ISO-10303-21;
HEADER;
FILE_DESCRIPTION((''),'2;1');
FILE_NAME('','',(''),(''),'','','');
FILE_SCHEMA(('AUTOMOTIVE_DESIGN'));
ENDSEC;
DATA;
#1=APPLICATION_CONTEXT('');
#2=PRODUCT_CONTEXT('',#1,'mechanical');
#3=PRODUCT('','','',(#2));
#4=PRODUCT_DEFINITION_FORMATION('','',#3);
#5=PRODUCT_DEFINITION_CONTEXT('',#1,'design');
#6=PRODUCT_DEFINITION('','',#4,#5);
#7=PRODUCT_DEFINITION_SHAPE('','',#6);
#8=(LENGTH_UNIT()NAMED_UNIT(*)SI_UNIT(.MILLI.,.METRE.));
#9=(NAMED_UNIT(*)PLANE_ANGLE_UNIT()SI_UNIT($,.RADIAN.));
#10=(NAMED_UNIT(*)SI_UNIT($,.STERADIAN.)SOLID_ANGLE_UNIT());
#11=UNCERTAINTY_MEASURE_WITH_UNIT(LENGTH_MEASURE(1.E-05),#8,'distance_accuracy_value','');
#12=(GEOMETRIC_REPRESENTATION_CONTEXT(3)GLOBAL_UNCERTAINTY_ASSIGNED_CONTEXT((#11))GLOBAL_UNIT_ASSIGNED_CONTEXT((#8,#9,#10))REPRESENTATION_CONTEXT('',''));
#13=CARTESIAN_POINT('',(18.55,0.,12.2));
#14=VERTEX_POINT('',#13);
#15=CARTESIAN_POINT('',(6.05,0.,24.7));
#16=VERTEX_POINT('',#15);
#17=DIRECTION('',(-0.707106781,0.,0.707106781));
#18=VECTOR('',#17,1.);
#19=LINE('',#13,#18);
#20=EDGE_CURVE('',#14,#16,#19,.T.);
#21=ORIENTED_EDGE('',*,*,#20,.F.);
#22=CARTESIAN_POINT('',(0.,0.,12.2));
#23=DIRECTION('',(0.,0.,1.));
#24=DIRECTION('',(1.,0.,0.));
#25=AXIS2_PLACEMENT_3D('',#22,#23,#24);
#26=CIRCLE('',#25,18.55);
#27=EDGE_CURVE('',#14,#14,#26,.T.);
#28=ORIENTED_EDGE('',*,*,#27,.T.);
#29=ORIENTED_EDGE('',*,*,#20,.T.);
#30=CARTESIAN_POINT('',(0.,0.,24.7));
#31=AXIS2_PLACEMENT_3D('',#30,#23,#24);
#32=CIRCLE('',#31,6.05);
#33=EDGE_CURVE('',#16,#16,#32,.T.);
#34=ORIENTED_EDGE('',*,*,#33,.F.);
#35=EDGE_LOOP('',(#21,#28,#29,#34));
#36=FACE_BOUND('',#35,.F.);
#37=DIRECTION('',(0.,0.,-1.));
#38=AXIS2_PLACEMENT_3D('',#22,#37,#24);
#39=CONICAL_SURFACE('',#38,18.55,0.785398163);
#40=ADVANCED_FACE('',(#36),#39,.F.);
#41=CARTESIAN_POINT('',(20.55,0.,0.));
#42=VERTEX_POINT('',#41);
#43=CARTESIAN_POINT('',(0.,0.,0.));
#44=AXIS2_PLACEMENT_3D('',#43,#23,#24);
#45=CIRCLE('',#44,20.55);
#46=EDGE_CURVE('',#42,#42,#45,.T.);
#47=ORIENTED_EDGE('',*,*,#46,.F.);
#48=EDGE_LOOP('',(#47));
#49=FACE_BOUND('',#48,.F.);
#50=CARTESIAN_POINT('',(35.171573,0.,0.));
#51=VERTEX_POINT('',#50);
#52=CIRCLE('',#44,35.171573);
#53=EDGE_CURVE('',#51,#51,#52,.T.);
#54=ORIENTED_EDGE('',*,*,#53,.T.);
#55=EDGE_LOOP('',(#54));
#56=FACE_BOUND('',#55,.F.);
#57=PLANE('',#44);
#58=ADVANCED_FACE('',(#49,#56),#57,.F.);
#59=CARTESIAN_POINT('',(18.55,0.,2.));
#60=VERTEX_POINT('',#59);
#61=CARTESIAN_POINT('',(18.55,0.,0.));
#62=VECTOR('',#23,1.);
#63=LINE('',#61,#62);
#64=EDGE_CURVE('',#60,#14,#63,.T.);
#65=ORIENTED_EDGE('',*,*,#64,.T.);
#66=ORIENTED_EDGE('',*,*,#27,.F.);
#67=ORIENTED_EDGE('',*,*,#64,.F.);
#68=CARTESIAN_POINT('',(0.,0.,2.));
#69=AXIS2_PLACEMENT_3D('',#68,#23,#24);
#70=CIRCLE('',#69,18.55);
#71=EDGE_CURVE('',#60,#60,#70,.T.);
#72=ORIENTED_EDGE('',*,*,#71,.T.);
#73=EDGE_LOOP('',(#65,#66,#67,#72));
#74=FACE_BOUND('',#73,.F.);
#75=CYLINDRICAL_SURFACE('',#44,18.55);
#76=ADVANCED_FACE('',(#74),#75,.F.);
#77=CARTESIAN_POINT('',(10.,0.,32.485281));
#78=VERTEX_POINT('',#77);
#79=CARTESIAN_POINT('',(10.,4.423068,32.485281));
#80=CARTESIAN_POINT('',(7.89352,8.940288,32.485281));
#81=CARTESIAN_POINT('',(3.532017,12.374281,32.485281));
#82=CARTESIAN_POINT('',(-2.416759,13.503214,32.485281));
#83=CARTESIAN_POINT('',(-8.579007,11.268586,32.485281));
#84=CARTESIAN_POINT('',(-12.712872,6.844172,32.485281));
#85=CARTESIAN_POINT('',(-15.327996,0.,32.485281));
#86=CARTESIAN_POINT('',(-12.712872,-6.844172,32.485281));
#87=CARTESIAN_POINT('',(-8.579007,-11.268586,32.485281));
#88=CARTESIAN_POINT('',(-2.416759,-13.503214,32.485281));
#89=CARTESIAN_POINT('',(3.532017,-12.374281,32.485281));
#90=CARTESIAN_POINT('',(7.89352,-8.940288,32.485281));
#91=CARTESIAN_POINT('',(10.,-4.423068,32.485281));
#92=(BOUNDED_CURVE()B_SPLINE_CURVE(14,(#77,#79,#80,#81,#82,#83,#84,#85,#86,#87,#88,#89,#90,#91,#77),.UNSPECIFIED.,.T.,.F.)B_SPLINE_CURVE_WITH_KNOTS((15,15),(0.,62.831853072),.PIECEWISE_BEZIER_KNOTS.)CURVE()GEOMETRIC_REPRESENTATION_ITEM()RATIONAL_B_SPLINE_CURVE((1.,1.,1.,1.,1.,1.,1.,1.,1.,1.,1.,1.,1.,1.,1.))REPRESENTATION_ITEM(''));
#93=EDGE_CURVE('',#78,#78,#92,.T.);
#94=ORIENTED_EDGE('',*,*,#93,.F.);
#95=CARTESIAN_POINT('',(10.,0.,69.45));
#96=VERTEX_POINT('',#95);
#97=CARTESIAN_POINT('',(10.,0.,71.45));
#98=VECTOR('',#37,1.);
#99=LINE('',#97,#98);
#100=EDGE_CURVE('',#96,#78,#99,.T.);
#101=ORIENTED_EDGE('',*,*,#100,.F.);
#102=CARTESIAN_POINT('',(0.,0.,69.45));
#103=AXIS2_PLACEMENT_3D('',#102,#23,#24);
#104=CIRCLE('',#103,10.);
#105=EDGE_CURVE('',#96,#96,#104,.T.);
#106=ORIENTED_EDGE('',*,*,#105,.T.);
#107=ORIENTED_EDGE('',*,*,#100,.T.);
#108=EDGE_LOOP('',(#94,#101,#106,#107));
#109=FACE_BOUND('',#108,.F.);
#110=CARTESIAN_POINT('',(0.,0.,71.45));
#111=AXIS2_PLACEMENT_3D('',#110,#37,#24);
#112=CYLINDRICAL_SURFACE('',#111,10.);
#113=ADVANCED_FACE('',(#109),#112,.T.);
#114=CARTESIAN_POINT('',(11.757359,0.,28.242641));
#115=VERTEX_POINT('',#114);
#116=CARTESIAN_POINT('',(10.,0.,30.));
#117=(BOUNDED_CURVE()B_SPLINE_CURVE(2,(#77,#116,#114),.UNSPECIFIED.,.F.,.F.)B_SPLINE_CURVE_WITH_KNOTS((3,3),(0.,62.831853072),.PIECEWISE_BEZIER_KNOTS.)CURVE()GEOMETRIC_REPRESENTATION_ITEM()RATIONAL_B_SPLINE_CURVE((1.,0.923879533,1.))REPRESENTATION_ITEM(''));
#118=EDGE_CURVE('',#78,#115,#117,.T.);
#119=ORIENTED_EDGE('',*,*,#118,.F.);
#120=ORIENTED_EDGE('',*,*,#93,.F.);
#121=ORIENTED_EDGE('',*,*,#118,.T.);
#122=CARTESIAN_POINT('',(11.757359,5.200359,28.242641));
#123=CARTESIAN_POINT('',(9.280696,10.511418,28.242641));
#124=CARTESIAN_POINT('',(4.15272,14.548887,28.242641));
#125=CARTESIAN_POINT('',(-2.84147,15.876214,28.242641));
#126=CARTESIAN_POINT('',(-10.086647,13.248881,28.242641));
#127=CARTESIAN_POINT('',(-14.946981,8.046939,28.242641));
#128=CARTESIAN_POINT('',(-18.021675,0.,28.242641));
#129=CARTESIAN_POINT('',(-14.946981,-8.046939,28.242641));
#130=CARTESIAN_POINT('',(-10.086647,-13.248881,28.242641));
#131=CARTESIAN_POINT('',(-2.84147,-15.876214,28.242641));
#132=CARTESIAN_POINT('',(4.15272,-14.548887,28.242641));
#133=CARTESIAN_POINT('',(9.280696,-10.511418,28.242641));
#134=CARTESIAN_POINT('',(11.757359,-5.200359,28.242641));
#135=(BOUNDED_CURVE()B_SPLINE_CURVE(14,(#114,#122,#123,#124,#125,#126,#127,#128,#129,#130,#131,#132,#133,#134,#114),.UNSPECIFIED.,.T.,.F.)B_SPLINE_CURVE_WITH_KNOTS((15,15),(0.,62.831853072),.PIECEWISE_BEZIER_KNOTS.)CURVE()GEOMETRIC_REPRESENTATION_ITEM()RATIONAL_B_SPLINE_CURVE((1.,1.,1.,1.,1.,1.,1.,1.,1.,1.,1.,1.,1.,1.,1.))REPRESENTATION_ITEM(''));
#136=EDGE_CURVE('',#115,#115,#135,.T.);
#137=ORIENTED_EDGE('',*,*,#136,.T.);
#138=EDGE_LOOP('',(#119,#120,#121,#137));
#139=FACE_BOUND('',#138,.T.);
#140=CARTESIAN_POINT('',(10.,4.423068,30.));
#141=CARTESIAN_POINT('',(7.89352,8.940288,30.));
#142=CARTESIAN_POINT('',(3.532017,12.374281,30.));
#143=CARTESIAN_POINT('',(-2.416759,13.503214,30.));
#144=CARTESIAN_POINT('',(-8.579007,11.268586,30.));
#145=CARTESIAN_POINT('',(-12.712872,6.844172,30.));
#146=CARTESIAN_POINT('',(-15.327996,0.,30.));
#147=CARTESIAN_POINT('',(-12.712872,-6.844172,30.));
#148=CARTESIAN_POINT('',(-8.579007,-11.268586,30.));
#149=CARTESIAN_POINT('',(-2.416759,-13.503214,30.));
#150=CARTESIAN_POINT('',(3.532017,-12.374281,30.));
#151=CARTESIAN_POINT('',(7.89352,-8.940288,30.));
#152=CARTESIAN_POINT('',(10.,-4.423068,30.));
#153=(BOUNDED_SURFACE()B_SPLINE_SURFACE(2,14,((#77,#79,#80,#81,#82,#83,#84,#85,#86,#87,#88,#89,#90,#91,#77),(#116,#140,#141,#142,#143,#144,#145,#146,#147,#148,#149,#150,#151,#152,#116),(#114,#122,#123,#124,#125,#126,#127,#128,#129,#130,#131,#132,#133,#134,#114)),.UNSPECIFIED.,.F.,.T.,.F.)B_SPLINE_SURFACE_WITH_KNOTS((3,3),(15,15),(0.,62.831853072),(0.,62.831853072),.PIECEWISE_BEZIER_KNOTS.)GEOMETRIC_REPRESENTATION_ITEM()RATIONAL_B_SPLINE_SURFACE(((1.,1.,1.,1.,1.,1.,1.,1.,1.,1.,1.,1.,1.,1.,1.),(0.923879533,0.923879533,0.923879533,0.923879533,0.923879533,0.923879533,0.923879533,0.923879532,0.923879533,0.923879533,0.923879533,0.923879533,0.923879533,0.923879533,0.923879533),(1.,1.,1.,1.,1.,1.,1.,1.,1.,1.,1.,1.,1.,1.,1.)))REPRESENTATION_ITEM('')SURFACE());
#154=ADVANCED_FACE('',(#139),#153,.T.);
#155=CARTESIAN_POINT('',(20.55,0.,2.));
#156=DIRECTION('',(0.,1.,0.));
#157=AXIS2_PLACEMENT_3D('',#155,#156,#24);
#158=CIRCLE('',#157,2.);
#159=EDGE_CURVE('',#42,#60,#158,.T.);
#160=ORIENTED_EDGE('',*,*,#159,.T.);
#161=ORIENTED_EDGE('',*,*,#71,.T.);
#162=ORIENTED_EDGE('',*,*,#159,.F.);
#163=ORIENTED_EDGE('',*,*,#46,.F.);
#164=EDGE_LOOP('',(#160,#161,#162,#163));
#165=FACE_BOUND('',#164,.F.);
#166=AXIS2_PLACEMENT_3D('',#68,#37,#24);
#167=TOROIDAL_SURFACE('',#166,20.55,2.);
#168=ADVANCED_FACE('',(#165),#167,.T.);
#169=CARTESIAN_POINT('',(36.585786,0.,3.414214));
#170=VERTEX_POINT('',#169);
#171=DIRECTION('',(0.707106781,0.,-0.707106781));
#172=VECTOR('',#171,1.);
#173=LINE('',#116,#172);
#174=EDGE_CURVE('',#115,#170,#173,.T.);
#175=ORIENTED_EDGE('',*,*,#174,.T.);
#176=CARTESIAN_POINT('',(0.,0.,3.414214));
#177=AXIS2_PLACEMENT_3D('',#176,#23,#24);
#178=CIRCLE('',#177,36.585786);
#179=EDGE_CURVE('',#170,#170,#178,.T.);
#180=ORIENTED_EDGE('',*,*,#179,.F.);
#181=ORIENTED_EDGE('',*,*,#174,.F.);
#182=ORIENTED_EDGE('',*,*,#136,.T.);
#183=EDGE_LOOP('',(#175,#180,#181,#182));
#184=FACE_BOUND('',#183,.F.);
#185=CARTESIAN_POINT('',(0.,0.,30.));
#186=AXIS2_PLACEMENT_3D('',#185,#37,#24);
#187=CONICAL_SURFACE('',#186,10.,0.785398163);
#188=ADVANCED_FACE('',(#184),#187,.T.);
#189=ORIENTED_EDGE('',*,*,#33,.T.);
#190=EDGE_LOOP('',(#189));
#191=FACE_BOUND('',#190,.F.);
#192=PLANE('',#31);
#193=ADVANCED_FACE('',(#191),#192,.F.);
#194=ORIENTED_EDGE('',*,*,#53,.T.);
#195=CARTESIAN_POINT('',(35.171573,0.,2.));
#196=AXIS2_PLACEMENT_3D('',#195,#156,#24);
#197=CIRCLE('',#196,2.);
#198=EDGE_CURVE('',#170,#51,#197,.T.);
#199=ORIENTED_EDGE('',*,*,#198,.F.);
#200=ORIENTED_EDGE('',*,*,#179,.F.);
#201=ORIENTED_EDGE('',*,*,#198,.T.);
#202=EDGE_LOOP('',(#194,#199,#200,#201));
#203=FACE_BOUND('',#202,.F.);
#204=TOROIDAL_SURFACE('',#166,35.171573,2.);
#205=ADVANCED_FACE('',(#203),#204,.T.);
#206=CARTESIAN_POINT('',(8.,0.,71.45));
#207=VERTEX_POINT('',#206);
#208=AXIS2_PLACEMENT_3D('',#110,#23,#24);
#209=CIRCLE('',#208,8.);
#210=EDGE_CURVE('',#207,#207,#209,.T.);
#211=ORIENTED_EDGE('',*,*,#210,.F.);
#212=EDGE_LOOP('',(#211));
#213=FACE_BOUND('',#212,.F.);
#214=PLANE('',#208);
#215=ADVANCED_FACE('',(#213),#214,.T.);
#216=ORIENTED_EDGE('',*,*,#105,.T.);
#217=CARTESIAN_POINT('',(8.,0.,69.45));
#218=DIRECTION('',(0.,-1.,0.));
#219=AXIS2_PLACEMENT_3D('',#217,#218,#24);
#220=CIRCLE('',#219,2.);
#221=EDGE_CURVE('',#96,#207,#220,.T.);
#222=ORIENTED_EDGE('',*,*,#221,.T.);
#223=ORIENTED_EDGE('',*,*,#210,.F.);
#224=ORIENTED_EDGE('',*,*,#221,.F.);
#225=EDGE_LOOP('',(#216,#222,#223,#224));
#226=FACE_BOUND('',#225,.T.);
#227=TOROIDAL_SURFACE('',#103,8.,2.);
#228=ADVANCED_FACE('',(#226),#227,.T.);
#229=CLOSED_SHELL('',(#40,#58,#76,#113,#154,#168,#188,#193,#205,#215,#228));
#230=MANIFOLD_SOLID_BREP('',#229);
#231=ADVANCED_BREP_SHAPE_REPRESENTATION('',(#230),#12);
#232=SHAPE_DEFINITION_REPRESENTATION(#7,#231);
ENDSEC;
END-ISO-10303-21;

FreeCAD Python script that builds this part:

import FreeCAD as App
import Part
import Sketcher

V = App.Vector
Q = App.Units.Quantity


def edges_at(feature, points):
    """Names of the edges that pass closest to the given points."""
    edges = feature.Shape.Edges
    near = lambda p: min(range(len(edges)), key=lambda i: edges[i].distToShape(Part.Vertex(*p))[0])
    return sorted({f"Edge{near(p) + 1}" for p in points})


def add_polygon(sketch, points):
    """Adds a closed chain of lines whose ends are joined by coincident constraints."""
    first, n = sketch.GeometryCount, len(points)
    for a, b in zip(points, points[1:] + points[:1]):
        sketch.addGeometry(Part.LineSegment(App.Vector(*a, 0), App.Vector(*b, 0)), False)
    for i in range(n):
        sketch.addConstraint(Sketcher.Constraint("Coincident", first + i, 2, first + (i + 1) % n, 1))

doc = App.newDocument("Part")
body = doc.addObject("PartDesign::Body", "Body")

sketch1 = body.newObject("Sketcher::SketchObject", "Sketch")
sketch1.AttachmentSupport = (doc.getObject("XZ_Plane"), [""])
sketch1.MapMode = "FlatFace"
add_polygon(sketch1, [(19, 12), (19, 0), (40, 0), (10, 30), (10, 71), (0, 71), (0, 25), (6, 25)])
sketch1.addConstraint(Sketcher.Constraint("Vertical", 0))
sketch1.addConstraint(Sketcher.Constraint("Horizontal", 1))
sketch1.addConstraint(Sketcher.Constraint("Vertical", 3))
sketch1.addConstraint(Sketcher.Constraint("Horizontal", 4))
sketch1.addConstraint(Sketcher.Constraint("Vertical", 5))
sketch1.addConstraint(Sketcher.Constraint("Horizontal", 6))
sketch1.addConstraint(Sketcher.Constraint("PointOnObject", 0, 2, -1))
sketch1.addConstraint(Sketcher.Constraint("PointOnObject", 4, 2, -2))
sketch1.addConstraint(Sketcher.Constraint("Parallel", 2, 7))
sketch1.addConstraint(Sketcher.Constraint("DistanceX", 4, 2, 4, 1, Q("10 mm")))
sketch1.addConstraint(Sketcher.Constraint("Angle", 2, Q("135 deg")))
sketch1.addConstraint(Sketcher.Constraint("DistanceY", 0, 2, 0, 1, Q("12.2 mm")))
sketch1.addConstraint(Sketcher.Constraint("DistanceX", -1, 1, 1, 2, Q("40 mm")))
sketch1.addConstraint(Sketcher.Constraint("DistanceX", 1, 1, 1, 2, Q("21.45 mm")))
sketch1.addConstraint(Sketcher.Constraint("DistanceX", 6, 1, 6, 2, Q("6.05 mm")))
sketch1.addConstraint(Sketcher.Constraint("DistanceY", 3, 1, 3, 2, Q("41.45 mm")))
revolution = body.newObject("PartDesign::Revolution", "Revolution")
revolution.Profile = sketch1
revolution.ReferenceAxis = (sketch1, ["V_Axis"])
revolution.Angle = 360
doc.recompute()

fillet = body.newObject("PartDesign::Fillet", "Fillet")
fillet.Base = (revolution, edges_at(revolution, [(-10, 0, 30)]))
fillet.Radius = 6
doc.recompute()

fillet2 = body.newObject("PartDesign::Fillet", "Fillet001")
fillet2.Base = (fillet, edges_at(fillet, [(-10, 0, 71.45), (-18.55, 0, 0), (-40, 0, 0)]))
fillet2.Radius = 2

doc.recompute()
